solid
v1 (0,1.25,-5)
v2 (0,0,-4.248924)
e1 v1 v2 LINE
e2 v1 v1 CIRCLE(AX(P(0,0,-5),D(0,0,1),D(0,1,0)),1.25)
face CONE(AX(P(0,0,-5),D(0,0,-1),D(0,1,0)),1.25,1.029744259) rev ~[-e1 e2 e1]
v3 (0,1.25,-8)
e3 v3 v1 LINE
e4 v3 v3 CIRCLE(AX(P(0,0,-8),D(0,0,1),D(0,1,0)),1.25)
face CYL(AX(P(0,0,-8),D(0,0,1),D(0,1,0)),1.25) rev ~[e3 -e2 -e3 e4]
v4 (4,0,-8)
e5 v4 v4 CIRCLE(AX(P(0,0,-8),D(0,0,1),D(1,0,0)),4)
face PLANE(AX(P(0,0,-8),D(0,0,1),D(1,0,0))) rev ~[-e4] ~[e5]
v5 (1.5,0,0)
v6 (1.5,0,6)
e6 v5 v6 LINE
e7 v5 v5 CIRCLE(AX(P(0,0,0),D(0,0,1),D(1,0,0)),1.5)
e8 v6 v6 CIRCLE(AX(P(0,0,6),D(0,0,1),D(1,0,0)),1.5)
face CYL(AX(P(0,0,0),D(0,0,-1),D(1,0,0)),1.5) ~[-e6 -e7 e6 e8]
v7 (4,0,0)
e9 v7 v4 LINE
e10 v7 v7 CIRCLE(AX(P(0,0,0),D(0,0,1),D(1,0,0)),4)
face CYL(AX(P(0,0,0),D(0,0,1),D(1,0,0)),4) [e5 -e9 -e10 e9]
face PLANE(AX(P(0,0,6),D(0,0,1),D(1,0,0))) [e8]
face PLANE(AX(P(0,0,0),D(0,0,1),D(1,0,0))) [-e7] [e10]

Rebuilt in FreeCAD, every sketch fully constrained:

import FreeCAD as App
import Part
import Sketcher
from FreeCAD import Vector

doc = App.newDocument("Part")
body = doc.addObject("PartDesign::Body", "Body")

sketch1 = doc.addObject("Sketcher::SketchObject", "Sketch")
body.addObject(sketch1)
sketch1.AttachmentSupport = (doc.XY_Plane, [""])
sketch1.MapMode = "FlatFace"
sketch1.addGeometry(Part.Circle(Vector(0, 0, 0), Vector(0, 0, 1), 1.5), False)
sketch1.addConstraint([
    Sketcher.Constraint("Coincident", 0, 3, -1, 1),
    Sketcher.Constraint("Diameter", 0, 3.0),
])
pad1 = doc.addObject("PartDesign::Pad", "Pad")
body.addObject(pad1)
pad1.Profile = sketch1
pad1.Length = 6

sketch2 = doc.addObject("Sketcher::SketchObject", "Sketch001")
body.addObject(sketch2)
sketch2.AttachmentSupport = (doc.XY_Plane, [""])
sketch2.MapMode = "FlatFace"
sketch2.addGeometry(Part.Circle(Vector(0, 0, 0), Vector(0, 0, 1), 4), False)
sketch2.addConstraint([
    Sketcher.Constraint("Coincident", 0, 3, -1, 1),
    Sketcher.Constraint("Diameter", 0, 8.0),
])
pad2 = doc.addObject("PartDesign::Pad", "Pad001")
body.addObject(pad2)
pad2.Profile = sketch2
pad2.Length = 8
pad2.Reversed = True

sketch3 = doc.addObject("Sketcher::SketchObject", "Sketch002")
body.addObject(sketch3)
sketch3.AttachmentSupport = (doc.XY_Plane, [""])
sketch3.MapMode = "FlatFace"
sketch3.AttachmentOffset = App.Placement(Vector(0, 0, -8), App.Rotation())
sketch3.addGeometry(Part.Circle(Vector(0, 0, 0), Vector(0, 0, 1), 1.25), False)
sketch3.addConstraint([
    Sketcher.Constraint("Coincident", 0, 3, -1, 1),
    Sketcher.Constraint("Diameter", 0, 2.5),
])
doc.recompute()
hole = doc.addObject("PartDesign::Hole", "Hole")
body.addObject(hole)
hole.Profile = sketch3
hole.ThreadType = "None"
hole.Diameter = 2.5
hole.DepthType = "Dimension"
hole.Depth = 3
hole.DrillPoint = "Angled"
hole.DrillPointAngle = 118
hole.Reversed = True

doc.recompute()
